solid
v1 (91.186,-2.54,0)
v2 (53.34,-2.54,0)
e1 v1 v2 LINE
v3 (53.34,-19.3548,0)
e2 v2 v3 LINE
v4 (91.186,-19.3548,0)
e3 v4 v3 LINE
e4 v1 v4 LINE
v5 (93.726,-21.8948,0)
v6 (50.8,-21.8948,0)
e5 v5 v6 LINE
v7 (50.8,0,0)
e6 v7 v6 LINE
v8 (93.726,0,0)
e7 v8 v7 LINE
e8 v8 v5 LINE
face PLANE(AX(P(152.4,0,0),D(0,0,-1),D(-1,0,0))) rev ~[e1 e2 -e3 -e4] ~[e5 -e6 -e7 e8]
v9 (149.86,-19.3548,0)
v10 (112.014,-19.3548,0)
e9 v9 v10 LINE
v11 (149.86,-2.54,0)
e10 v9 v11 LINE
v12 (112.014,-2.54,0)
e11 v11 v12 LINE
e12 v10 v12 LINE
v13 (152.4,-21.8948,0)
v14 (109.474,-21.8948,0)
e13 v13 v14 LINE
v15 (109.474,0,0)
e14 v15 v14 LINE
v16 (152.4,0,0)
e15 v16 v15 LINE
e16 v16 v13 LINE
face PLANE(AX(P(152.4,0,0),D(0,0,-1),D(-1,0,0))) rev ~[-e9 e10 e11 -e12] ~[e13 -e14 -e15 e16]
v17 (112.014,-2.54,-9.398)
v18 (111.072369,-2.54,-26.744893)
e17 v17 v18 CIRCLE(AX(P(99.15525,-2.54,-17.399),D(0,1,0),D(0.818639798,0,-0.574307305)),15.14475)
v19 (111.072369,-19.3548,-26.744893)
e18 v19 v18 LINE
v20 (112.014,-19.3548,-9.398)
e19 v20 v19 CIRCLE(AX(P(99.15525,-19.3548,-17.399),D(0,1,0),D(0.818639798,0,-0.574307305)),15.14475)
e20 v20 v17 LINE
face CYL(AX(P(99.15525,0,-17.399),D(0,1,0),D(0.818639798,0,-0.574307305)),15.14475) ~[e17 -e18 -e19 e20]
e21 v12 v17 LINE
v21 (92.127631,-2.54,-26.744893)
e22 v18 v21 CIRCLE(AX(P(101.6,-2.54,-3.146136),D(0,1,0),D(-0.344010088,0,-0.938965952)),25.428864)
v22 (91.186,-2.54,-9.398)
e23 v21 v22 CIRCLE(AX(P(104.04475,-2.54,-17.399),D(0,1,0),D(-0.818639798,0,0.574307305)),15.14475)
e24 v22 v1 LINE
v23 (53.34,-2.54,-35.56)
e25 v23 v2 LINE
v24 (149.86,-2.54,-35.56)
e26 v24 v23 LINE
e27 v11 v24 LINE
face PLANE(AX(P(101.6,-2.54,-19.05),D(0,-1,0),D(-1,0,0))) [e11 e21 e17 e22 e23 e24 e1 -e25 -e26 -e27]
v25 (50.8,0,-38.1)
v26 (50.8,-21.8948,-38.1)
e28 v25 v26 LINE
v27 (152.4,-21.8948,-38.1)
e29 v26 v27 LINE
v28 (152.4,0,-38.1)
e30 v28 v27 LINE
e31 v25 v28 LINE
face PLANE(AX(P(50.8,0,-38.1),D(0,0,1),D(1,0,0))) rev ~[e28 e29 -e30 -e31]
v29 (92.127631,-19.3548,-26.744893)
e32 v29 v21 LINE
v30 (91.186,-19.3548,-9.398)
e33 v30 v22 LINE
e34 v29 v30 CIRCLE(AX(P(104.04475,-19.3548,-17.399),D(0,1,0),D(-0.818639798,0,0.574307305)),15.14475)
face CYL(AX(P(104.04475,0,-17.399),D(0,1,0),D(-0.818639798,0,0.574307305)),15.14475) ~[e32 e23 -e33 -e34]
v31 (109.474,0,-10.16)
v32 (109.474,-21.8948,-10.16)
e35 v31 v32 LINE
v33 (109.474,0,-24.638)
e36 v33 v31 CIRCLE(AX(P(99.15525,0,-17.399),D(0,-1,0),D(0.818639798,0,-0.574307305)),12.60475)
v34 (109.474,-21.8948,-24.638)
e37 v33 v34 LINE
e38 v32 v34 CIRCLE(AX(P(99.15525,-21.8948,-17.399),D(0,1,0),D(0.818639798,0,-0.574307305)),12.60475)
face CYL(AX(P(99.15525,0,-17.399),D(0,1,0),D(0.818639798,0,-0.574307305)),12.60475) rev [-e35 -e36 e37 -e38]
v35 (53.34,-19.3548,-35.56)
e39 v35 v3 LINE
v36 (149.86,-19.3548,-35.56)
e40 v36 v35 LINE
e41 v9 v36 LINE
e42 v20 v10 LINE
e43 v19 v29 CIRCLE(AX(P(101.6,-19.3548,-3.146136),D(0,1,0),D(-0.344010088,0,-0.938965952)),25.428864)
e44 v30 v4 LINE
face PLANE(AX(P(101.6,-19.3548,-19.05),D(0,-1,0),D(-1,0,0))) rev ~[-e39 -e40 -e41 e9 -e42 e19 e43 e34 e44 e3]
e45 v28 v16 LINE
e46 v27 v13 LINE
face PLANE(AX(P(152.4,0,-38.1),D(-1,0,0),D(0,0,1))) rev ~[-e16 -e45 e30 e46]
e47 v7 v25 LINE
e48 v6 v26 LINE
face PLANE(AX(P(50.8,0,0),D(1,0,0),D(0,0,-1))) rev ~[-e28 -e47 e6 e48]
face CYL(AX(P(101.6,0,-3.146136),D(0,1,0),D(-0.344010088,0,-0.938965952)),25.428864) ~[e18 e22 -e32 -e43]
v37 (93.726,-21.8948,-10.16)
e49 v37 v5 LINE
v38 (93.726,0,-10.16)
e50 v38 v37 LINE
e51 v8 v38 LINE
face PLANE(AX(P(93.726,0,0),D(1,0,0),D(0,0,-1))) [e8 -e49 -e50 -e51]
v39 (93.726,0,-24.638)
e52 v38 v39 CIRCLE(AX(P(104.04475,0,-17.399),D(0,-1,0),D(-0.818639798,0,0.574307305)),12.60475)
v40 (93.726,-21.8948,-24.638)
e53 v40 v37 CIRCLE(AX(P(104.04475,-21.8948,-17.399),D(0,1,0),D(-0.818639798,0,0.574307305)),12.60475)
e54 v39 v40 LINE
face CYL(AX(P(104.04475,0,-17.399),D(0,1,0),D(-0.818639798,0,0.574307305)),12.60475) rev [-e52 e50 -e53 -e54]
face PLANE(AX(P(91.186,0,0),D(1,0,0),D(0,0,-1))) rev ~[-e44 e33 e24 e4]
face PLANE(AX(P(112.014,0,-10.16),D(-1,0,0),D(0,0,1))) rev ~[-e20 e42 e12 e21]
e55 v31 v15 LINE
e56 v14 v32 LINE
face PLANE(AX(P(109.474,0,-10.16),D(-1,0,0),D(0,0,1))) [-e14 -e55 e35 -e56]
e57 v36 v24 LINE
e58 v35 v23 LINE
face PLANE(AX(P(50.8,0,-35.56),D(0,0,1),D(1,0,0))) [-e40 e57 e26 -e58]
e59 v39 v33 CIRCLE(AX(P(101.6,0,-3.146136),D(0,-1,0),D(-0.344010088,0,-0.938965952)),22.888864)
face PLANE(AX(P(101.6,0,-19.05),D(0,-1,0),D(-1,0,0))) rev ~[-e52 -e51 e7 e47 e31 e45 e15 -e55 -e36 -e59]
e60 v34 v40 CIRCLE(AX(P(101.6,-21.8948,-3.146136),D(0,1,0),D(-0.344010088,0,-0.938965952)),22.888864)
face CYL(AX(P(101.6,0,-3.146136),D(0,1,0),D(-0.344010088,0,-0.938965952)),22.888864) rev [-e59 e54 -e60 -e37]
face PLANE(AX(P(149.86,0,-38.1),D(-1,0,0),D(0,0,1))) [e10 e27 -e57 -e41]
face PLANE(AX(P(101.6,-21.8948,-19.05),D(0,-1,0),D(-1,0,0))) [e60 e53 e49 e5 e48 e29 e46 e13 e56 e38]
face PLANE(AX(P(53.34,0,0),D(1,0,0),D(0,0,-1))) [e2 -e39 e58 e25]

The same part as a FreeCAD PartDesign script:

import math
import FreeCAD as App
import Part
import Sketcher

V = App.Vector
Q = App.Units.Quantity


def faces_at(feature, points):
    """Names of the faces that lie closest to the given points."""
    faces = feature.Shape.Faces
    near = lambda p: min(range(len(faces)), key=lambda i: faces[i].distToShape(Part.Vertex(*p))[0])
    return sorted({f"Face{near(p) + 1}" for p in points})


def add_polygon(sketch, points):
    """Adds a closed chain of lines whose ends are joined by coincident constraints."""
    first, n = sketch.GeometryCount, len(points)
    for a, b in zip(points, points[1:] + points[:1]):
        sketch.addGeometry(Part.LineSegment(App.Vector(*a, 0), App.Vector(*b, 0)), False)
    for i in range(n):
        sketch.addConstraint(Sketcher.Constraint("Coincident", first + i, 2, first + (i + 1) % n, 1))

doc = App.newDocument("Part")
params = doc.addObject("Spreadsheet::Sheet", "Params")
for row, (alias, value) in enumerate([
    ("sketch1_width", "4 in"),
    ("sketch1_height", "1.5 in"),
    ("pad1_length", "0.862 in"),
    ("sketch2_height", "0.4 in"),
    ("sketch2_width", "0.62 in"),
    ("pocket1_length", "1 in"),
    ("thickness_wall", "0.1 in"),
], start=1):
    params.set(f"A{row}", alias)
    params.set(f"B{row}", "=" + value)
    params.setAlias(f"B{row}", alias)

body = doc.addObject("PartDesign::Body", "Body")

sketch1 = body.newObject("Sketcher::SketchObject", "Sketch")
sketch1.AttachmentSupport = (doc.getObject("XZ_Plane"), [""])
sketch1.MapMode = "FlatFace"
add_polygon(sketch1, [(-51, 0), (51, 0), (51, 38), (-51, 38)])
sketch1.addConstraint([
    Sketcher.Constraint("Horizontal", 0),
    Sketcher.Constraint("Vertical", 1),
    Sketcher.Constraint("Horizontal", 2),
    Sketcher.Constraint("Vertical", 3),
    Sketcher.Constraint("Symmetric", 0, 2, 3, 2, -1, 1),
    Sketcher.Constraint("DistanceX", 0, 1, 0, 2, Q("4 in")),
    Sketcher.Constraint("DistanceY", 1, 1, 1, 2, Q("1.5 in")),
])
sketch1.setExpression("Constraints[9]", "Params.sketch1_width")
sketch1.setExpression("Constraints[10]", "Params.sketch1_height")
pad1 = body.newObject("PartDesign::Pad", "Pad")
pad1.Profile = sketch1
pad1.setExpression("Length", "Params.pad1_length")

sketch2 = body.newObject("Sketcher::SketchObject", "Sketch001")
sketch2.AttachmentSupport = (doc.getObject("XZ_Plane"), [""])
sketch2.MapMode = "FlatFace"
sketch2.addGeometry([
    Part.ArcOfCircle(Part.Circle(V(2, 17, 0), V(0, 0, 1), 13), math.radians(145), math.radians(215)),
    Part.LineSegment(V(-8, 10, 0), V(-8, 0, 0)),
    Part.LineSegment(V(-8, 0, 0), V(8, 0, 0)),
    Part.LineSegment(V(8, 0, 0), V(8, 10, 0)),
    Part.ArcOfCircle(Part.Circle(V(-2, 17, 0), V(0, 0, 1), 13), math.radians(-35), math.radians(35)),
    Part.ArcOfCircle(Part.Circle(V(0, 3, 0), V(0, 0, 1), 23), math.radians(70), math.radians(110)),
], False)
sketch2.addConstraint([
    Sketcher.Constraint("Coincident", 0, 2, 1, 1),
    Sketcher.Constraint("Coincident", 1, 2, 2, 1),
    Sketcher.Constraint("Coincident", 2, 2, 3, 1),
    Sketcher.Constraint("Coincident", 3, 2, 4, 1),
    Sketcher.Constraint("Coincident", 4, 2, 5, 1),
    Sketcher.Constraint("Coincident", 5, 2, 0, 1),
    Sketcher.Constraint("Vertical", 1),
    Sketcher.Constraint("Horizontal", 2),
    Sketcher.Constraint("Vertical", 3),
    Sketcher.Constraint("Equal", 0, 4),
    Sketcher.Constraint("Symmetric", 1, 2, 2, 2, -1, 1),
    Sketcher.Constraint("Symmetric", 0, 3, 4, 3, -2),
    Sketcher.Constraint("PointOnObject", 5, 3, -2),
    Sketcher.Constraint("Vertical", 3, 2, 4, 2),
    Sketcher.Constraint("DistanceY", 1, 2, 1, 1, Q("0.4 in")),
    Sketcher.Constraint("DistanceX", 2, 1, 2, 2, Q("0.62 in")),
    Sketcher.Constraint("DistanceY", -1, 1, 4, 2, Q("0.97 in")),
    Sketcher.Constraint("Radius", 0, 12.60475),
    Sketcher.Constraint("Radius", 5, 22.888864),
])
sketch2.setExpression("Constraints[14]", "Params.sketch2_height")
sketch2.setExpression("Constraints[15]", "Params.sketch2_width")
pocket1 = body.newObject("PartDesign::Pocket", "Pocket")
pocket1.Profile = sketch2
pocket1.setExpression("Length", "Params.pocket1_length")
pocket1.Reversed = True
doc.recompute()

thickness = body.newObject("PartDesign::Thickness", "Thickness")
thickness.Base = (pocket1, faces_at(pocket1, [(29.337, -10.947, 0), (-29.337, -10.947, 0)]))
thickness.setExpression("Value", "Params.thickness_wall")
thickness.Reversed = True
thickness.Join = "Intersection"
body2 = doc.addObject("PartDesign::Body", "Body001")
doc.recompute()

body.Placement = App.Placement(V(101.6, 0, 0), App.Rotation(V(0, 1, 0), 180))
boolean = body2.newObject("PartDesign::Boolean", "Boolean")
boolean.Type = "Fuse"
boolean.addObjects([body])

doc.recompute()
